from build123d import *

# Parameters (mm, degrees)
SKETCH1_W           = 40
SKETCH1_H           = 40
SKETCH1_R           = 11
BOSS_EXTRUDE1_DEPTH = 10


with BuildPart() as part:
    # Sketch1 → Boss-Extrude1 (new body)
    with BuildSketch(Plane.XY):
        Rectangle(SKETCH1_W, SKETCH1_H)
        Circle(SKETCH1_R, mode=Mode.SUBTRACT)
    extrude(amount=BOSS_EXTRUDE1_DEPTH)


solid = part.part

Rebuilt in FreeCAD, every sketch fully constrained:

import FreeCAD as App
import Part
import Sketcher

doc = App.newDocument("Part")
params = doc.addObject("Spreadsheet::Sheet", "Params")
for row, (alias, value) in enumerate([
    ("sketch1_diameter", "22 mm"),
    ("sketch1_width", "40 mm"),
    ("pad1_length", "10 mm"),
], start=1):
    params.set(f"A{row}", alias)
    params.set(f"B{row}", "=" + value)
    params.setAlias(f"B{row}", alias)

body = doc.addObject("PartDesign::Body", "Body")

sketch1 = body.newObject("Sketcher::SketchObject", "Sketch")
sketch1.AttachmentSupport = (doc.getObject("XY_Plane"), [""])
sketch1.MapMode = "FlatFace"
sketch1.addGeometry([
    Part.LineSegment(App.Vector(-20, 20, 0), App.Vector(-20, -20, 0)),
    Part.LineSegment(App.Vector(-20, -20, 0), App.Vector(20, -20, 0)),
    Part.LineSegment(App.Vector(20, -20, 0), App.Vector(20, 20, 0)),
    Part.LineSegment(App.Vector(20, 20, 0), App.Vector(-20, 20, 0)),
    Part.Circle(App.Vector(0, 0, 0), App.Vector(0, 0, 1), 11),
], False)
sketch1.addConstraint([
    Sketcher.Constraint("Coincident", 0, 2, 1, 1),
    Sketcher.Constraint("Coincident", 1, 2, 2, 1),
    Sketcher.Constraint("Coincident", 2, 2, 3, 1),
    Sketcher.Constraint("Coincident", 3, 2, 0, 1),
    Sketcher.Constraint("Vertical", 0),
    Sketcher.Constraint("Horizontal", 1),
    Sketcher.Constraint("Vertical", 2),
    Sketcher.Constraint("Horizontal", 3),
    Sketcher.Constraint("Coincident", 4, 3, -1, 1),
    Sketcher.Constraint("Symmetric", 0, 2, 2, 2, -1, 1),
    Sketcher.Constraint("Equal", 3, 0),
    Sketcher.Constraint("Diameter", 4, 22.0),
    Sketcher.Constraint("DistanceX", 1, 1, 1, 2, 40.0),
])
sketch1.setExpression("Constraints[11]", "Params.sketch1_diameter")
sketch1.setExpression("Constraints[12]", "Params.sketch1_width")
pad1 = body.newObject("PartDesign::Pad", "Pad")
pad1.Profile = sketch1
pad1.setExpression("Length", "Params.pad1_length")

doc.recompute()
